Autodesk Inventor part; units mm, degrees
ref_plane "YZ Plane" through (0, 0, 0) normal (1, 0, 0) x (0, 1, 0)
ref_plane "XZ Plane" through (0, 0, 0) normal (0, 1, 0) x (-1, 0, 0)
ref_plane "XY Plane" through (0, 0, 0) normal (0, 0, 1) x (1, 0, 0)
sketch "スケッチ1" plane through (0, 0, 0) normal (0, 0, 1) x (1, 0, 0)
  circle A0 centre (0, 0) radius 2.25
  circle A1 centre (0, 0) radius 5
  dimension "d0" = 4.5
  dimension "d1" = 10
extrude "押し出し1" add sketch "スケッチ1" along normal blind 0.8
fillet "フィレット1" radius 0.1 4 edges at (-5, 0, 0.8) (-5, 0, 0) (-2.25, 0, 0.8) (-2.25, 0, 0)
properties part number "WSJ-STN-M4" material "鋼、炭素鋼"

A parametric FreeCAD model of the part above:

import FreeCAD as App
import Part
import Sketcher
from FreeCAD import Vector
Q = App.Units.Quantity


def edges_at(feature, points):
    """Names of the edges that pass closest to the given points."""
    edges = feature.Shape.Edges
    near = lambda p: min(range(len(edges)), key=lambda i: edges[i].distToShape(Part.Vertex(*p))[0])
    return sorted({f"Edge{near(p) + 1}" for p in points})

doc = App.newDocument("Part")
body = doc.addObject("PartDesign::Body", "Body")

# Sketch on XY plane
sketch1 = doc.addObject("Sketcher::SketchObject", "Sketch")
body.addObject(sketch1)
sketch1.AttachmentSupport = (doc.XY_Plane, [""])
sketch1.MapMode = "FlatFace"
sketch1.addGeometry(Part.Circle(Vector(0, 0, 0), Vector(0, 0, 1), 5), False)
sketch1.addGeometry(Part.Circle(Vector(0, 0, 0), Vector(0, 0, 1), 2.2), False)
sketch1.addConstraint(Sketcher.Constraint("Coincident", 0, 3, -1, 1))
sketch1.addConstraint(Sketcher.Constraint("Coincident", 1, 3, -1, 1))
sketch1.addConstraint(Sketcher.Constraint("Diameter", 0, Q("10 mm")))
sketch1.addConstraint(Sketcher.Constraint("Diameter", 1, Q("4.5 mm")))
pad1 = doc.addObject("PartDesign::Pad", "Pad")
body.addObject(pad1)
pad1.Profile = sketch1
pad1.Length = 0.8
doc.recompute()

fillet = doc.addObject("PartDesign::Fillet", "Fillet")
body.addObject(fillet)
fillet.Base = (pad1, edges_at(pad1, [
    (-5, 0, 0.8),
    (-5, 0, 0),
    (-2.25, 0, 0.8),
    (-2.25, 0, 0),
]))
fillet.Radius = 0.1

doc.recompute()
